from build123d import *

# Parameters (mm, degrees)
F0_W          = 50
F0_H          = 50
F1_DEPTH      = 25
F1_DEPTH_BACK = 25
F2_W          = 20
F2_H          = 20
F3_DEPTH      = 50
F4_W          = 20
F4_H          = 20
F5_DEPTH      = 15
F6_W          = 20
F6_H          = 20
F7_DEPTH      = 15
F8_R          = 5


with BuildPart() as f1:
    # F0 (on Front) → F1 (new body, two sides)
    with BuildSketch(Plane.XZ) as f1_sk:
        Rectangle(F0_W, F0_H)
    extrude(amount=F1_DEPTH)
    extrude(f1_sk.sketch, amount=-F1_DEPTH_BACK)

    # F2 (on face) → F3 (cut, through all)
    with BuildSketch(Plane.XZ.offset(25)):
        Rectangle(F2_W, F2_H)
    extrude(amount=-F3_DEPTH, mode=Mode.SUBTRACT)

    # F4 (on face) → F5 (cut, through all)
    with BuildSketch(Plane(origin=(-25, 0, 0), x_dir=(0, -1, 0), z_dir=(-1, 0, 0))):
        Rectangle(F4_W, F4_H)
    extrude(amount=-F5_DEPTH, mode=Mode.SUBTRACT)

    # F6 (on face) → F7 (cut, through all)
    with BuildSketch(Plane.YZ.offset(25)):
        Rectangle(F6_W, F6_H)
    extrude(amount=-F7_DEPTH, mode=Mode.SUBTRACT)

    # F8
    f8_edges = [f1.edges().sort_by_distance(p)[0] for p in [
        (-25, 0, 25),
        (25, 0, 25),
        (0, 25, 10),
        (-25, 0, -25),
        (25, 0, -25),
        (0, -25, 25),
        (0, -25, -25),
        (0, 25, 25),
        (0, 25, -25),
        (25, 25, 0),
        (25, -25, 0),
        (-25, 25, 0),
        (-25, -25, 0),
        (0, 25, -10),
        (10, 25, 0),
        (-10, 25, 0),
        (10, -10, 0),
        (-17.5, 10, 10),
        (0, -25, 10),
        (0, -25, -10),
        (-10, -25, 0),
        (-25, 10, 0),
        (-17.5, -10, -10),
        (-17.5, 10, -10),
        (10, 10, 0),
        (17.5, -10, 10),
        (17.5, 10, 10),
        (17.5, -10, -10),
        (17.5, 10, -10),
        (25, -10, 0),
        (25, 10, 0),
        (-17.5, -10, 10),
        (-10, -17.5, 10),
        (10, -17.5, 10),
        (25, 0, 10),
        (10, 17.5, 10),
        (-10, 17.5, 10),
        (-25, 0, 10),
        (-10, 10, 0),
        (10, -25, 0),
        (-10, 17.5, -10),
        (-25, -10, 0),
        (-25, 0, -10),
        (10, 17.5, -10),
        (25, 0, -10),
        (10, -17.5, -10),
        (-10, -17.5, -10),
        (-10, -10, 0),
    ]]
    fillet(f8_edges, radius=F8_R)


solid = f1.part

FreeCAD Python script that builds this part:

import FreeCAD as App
import Part
import Sketcher


def add_polygon(sketch, points):
    """Adds a closed chain of lines whose ends are joined by coincident constraints."""
    first, n = sketch.GeometryCount, len(points)
    for a, b in zip(points, points[1:] + points[:1]):
        sketch.addGeometry(Part.LineSegment(App.Vector(*a, 0), App.Vector(*b, 0)), False)
    for i in range(n):
        sketch.addConstraint(Sketcher.Constraint("Coincident", first + i, 2, first + (i + 1) % n, 1))

doc = App.newDocument("Part")
body = doc.addObject("PartDesign::Body", "Body")

sketch1 = doc.addObject("Sketcher::SketchObject", "Sketch")
body.addObject(sketch1)
sketch1.AttachmentSupport = (doc.XZ_Plane, [""])
sketch1.MapMode = "FlatFace"
add_polygon(sketch1, [(-25, 25), (-25, -25), (25, -25), (25, 25)])
sketch1.addConstraint([
    Sketcher.Constraint("Vertical", 0),
    Sketcher.Constraint("Horizontal", 1),
    Sketcher.Constraint("Vertical", 2),
    Sketcher.Constraint("Horizontal", 3),
    Sketcher.Constraint("Symmetric", 0, 2, 2, 2, -1, 1),
    Sketcher.Constraint("Equal", 3, 0),
    Sketcher.Constraint("DistanceX", 1, 1, 1, 2, 50.0),
])
pad1 = doc.addObject("PartDesign::Pad", "Pad")
body.addObject(pad1)
pad1.Profile = sketch1
pad1.Type = "TwoLengths"
pad1.Length = 25
pad1.Length2 = 25

sketch2 = doc.addObject("Sketcher::SketchObject", "Sketch001")
body.addObject(sketch2)
sketch2.AttachmentSupport = (doc.XZ_Plane, [""])
sketch2.MapMode = "FlatFace"
sketch2.AttachmentOffset = App.Placement(App.Vector(0, 0, 25), App.Rotation())
add_polygon(sketch2, [(-10, 10), (-10, -10), (10, -10), (10, 10)])
sketch2.addConstraint([
    Sketcher.Constraint("Vertical", 0),
    Sketcher.Constraint("Horizontal", 1),
    Sketcher.Constraint("Vertical", 2),
    Sketcher.Constraint("Horizontal", 3),
    Sketcher.Constraint("Symmetric", 0, 2, 2, 2, -1, 1),
    Sketcher.Constraint("Equal", 3, 0),
    Sketcher.Constraint("DistanceX", 1, 1, 1, 2, 20.0),
])
pocket1 = doc.addObject("PartDesign::Pocket", "Pocket")
body.addObject(pocket1)
pocket1.Profile = sketch2
pocket1.Type = "ThroughAll"

sketch3 = doc.addObject("Sketcher::SketchObject", "Sketch002")
body.addObject(sketch3)
sketch3.AttachmentSupport = (doc.YZ_Plane, [""])
sketch3.MapMode = "FlatFace"
sketch3.AttachmentOffset = App.Placement(App.Vector(0, 0, -25), App.Rotation())
add_polygon(sketch3, [(10, 10), (10, -10), (-10, -10), (-10, 10)])
sketch3.addConstraint([
    Sketcher.Constraint("Vertical", 0),
    Sketcher.Constraint("Horizontal", 1),
    Sketcher.Constraint("Vertical", 2),
    Sketcher.Constraint("Horizontal", 3),
    Sketcher.Constraint("Symmetric", 0, 2, 2, 2, -1, 1),
    Sketcher.Constraint("Equal", 3, 0),
    Sketcher.Constraint("DistanceX", 1, 2, 1, 1, 20.0),
])
pocket2 = doc.addObject("PartDesign::Pocket", "Pocket001")
body.addObject(pocket2)
pocket2.Profile = sketch3
pocket2.Length = 15
pocket2.Reversed = True

sketch4 = doc.addObject("Sketcher::SketchObject", "Sketch003")
body.addObject(sketch4)
sketch4.AttachmentSupport = (doc.YZ_Plane, [""])
sketch4.MapMode = "FlatFace"
sketch4.AttachmentOffset = App.Placement(App.Vector(0, 0, 25), App.Rotation())
add_polygon(sketch4, [(-10, 10), (-10, -10), (10, -10), (10, 10)])
sketch4.addConstraint([
    Sketcher.Constraint("Vertical", 0),
    Sketcher.Constraint("Horizontal", 1),
    Sketcher.Constraint("Vertical", 2),
    Sketcher.Constraint("Horizontal", 3),
    Sketcher.Constraint("Symmetric", 0, 2, 2, 2, -1, 1),
    Sketcher.Constraint("Equal", 3, 0),
    Sketcher.Constraint("DistanceX", 1, 1, 1, 2, 20.0),
])
pocket3 = doc.addObject("PartDesign::Pocket", "Pocket002")
body.addObject(pocket3)
pocket3.Profile = sketch4
pocket3.Type = "ThroughAll"
doc.recompute()

fillet = doc.addObject("PartDesign::Fillet", "Fillet")
body.addObject(fillet)
fillet.Base = (pocket3, ["Edge1"])
fillet.UseAllEdges = True
fillet.Radius = 5

doc.recompute()
